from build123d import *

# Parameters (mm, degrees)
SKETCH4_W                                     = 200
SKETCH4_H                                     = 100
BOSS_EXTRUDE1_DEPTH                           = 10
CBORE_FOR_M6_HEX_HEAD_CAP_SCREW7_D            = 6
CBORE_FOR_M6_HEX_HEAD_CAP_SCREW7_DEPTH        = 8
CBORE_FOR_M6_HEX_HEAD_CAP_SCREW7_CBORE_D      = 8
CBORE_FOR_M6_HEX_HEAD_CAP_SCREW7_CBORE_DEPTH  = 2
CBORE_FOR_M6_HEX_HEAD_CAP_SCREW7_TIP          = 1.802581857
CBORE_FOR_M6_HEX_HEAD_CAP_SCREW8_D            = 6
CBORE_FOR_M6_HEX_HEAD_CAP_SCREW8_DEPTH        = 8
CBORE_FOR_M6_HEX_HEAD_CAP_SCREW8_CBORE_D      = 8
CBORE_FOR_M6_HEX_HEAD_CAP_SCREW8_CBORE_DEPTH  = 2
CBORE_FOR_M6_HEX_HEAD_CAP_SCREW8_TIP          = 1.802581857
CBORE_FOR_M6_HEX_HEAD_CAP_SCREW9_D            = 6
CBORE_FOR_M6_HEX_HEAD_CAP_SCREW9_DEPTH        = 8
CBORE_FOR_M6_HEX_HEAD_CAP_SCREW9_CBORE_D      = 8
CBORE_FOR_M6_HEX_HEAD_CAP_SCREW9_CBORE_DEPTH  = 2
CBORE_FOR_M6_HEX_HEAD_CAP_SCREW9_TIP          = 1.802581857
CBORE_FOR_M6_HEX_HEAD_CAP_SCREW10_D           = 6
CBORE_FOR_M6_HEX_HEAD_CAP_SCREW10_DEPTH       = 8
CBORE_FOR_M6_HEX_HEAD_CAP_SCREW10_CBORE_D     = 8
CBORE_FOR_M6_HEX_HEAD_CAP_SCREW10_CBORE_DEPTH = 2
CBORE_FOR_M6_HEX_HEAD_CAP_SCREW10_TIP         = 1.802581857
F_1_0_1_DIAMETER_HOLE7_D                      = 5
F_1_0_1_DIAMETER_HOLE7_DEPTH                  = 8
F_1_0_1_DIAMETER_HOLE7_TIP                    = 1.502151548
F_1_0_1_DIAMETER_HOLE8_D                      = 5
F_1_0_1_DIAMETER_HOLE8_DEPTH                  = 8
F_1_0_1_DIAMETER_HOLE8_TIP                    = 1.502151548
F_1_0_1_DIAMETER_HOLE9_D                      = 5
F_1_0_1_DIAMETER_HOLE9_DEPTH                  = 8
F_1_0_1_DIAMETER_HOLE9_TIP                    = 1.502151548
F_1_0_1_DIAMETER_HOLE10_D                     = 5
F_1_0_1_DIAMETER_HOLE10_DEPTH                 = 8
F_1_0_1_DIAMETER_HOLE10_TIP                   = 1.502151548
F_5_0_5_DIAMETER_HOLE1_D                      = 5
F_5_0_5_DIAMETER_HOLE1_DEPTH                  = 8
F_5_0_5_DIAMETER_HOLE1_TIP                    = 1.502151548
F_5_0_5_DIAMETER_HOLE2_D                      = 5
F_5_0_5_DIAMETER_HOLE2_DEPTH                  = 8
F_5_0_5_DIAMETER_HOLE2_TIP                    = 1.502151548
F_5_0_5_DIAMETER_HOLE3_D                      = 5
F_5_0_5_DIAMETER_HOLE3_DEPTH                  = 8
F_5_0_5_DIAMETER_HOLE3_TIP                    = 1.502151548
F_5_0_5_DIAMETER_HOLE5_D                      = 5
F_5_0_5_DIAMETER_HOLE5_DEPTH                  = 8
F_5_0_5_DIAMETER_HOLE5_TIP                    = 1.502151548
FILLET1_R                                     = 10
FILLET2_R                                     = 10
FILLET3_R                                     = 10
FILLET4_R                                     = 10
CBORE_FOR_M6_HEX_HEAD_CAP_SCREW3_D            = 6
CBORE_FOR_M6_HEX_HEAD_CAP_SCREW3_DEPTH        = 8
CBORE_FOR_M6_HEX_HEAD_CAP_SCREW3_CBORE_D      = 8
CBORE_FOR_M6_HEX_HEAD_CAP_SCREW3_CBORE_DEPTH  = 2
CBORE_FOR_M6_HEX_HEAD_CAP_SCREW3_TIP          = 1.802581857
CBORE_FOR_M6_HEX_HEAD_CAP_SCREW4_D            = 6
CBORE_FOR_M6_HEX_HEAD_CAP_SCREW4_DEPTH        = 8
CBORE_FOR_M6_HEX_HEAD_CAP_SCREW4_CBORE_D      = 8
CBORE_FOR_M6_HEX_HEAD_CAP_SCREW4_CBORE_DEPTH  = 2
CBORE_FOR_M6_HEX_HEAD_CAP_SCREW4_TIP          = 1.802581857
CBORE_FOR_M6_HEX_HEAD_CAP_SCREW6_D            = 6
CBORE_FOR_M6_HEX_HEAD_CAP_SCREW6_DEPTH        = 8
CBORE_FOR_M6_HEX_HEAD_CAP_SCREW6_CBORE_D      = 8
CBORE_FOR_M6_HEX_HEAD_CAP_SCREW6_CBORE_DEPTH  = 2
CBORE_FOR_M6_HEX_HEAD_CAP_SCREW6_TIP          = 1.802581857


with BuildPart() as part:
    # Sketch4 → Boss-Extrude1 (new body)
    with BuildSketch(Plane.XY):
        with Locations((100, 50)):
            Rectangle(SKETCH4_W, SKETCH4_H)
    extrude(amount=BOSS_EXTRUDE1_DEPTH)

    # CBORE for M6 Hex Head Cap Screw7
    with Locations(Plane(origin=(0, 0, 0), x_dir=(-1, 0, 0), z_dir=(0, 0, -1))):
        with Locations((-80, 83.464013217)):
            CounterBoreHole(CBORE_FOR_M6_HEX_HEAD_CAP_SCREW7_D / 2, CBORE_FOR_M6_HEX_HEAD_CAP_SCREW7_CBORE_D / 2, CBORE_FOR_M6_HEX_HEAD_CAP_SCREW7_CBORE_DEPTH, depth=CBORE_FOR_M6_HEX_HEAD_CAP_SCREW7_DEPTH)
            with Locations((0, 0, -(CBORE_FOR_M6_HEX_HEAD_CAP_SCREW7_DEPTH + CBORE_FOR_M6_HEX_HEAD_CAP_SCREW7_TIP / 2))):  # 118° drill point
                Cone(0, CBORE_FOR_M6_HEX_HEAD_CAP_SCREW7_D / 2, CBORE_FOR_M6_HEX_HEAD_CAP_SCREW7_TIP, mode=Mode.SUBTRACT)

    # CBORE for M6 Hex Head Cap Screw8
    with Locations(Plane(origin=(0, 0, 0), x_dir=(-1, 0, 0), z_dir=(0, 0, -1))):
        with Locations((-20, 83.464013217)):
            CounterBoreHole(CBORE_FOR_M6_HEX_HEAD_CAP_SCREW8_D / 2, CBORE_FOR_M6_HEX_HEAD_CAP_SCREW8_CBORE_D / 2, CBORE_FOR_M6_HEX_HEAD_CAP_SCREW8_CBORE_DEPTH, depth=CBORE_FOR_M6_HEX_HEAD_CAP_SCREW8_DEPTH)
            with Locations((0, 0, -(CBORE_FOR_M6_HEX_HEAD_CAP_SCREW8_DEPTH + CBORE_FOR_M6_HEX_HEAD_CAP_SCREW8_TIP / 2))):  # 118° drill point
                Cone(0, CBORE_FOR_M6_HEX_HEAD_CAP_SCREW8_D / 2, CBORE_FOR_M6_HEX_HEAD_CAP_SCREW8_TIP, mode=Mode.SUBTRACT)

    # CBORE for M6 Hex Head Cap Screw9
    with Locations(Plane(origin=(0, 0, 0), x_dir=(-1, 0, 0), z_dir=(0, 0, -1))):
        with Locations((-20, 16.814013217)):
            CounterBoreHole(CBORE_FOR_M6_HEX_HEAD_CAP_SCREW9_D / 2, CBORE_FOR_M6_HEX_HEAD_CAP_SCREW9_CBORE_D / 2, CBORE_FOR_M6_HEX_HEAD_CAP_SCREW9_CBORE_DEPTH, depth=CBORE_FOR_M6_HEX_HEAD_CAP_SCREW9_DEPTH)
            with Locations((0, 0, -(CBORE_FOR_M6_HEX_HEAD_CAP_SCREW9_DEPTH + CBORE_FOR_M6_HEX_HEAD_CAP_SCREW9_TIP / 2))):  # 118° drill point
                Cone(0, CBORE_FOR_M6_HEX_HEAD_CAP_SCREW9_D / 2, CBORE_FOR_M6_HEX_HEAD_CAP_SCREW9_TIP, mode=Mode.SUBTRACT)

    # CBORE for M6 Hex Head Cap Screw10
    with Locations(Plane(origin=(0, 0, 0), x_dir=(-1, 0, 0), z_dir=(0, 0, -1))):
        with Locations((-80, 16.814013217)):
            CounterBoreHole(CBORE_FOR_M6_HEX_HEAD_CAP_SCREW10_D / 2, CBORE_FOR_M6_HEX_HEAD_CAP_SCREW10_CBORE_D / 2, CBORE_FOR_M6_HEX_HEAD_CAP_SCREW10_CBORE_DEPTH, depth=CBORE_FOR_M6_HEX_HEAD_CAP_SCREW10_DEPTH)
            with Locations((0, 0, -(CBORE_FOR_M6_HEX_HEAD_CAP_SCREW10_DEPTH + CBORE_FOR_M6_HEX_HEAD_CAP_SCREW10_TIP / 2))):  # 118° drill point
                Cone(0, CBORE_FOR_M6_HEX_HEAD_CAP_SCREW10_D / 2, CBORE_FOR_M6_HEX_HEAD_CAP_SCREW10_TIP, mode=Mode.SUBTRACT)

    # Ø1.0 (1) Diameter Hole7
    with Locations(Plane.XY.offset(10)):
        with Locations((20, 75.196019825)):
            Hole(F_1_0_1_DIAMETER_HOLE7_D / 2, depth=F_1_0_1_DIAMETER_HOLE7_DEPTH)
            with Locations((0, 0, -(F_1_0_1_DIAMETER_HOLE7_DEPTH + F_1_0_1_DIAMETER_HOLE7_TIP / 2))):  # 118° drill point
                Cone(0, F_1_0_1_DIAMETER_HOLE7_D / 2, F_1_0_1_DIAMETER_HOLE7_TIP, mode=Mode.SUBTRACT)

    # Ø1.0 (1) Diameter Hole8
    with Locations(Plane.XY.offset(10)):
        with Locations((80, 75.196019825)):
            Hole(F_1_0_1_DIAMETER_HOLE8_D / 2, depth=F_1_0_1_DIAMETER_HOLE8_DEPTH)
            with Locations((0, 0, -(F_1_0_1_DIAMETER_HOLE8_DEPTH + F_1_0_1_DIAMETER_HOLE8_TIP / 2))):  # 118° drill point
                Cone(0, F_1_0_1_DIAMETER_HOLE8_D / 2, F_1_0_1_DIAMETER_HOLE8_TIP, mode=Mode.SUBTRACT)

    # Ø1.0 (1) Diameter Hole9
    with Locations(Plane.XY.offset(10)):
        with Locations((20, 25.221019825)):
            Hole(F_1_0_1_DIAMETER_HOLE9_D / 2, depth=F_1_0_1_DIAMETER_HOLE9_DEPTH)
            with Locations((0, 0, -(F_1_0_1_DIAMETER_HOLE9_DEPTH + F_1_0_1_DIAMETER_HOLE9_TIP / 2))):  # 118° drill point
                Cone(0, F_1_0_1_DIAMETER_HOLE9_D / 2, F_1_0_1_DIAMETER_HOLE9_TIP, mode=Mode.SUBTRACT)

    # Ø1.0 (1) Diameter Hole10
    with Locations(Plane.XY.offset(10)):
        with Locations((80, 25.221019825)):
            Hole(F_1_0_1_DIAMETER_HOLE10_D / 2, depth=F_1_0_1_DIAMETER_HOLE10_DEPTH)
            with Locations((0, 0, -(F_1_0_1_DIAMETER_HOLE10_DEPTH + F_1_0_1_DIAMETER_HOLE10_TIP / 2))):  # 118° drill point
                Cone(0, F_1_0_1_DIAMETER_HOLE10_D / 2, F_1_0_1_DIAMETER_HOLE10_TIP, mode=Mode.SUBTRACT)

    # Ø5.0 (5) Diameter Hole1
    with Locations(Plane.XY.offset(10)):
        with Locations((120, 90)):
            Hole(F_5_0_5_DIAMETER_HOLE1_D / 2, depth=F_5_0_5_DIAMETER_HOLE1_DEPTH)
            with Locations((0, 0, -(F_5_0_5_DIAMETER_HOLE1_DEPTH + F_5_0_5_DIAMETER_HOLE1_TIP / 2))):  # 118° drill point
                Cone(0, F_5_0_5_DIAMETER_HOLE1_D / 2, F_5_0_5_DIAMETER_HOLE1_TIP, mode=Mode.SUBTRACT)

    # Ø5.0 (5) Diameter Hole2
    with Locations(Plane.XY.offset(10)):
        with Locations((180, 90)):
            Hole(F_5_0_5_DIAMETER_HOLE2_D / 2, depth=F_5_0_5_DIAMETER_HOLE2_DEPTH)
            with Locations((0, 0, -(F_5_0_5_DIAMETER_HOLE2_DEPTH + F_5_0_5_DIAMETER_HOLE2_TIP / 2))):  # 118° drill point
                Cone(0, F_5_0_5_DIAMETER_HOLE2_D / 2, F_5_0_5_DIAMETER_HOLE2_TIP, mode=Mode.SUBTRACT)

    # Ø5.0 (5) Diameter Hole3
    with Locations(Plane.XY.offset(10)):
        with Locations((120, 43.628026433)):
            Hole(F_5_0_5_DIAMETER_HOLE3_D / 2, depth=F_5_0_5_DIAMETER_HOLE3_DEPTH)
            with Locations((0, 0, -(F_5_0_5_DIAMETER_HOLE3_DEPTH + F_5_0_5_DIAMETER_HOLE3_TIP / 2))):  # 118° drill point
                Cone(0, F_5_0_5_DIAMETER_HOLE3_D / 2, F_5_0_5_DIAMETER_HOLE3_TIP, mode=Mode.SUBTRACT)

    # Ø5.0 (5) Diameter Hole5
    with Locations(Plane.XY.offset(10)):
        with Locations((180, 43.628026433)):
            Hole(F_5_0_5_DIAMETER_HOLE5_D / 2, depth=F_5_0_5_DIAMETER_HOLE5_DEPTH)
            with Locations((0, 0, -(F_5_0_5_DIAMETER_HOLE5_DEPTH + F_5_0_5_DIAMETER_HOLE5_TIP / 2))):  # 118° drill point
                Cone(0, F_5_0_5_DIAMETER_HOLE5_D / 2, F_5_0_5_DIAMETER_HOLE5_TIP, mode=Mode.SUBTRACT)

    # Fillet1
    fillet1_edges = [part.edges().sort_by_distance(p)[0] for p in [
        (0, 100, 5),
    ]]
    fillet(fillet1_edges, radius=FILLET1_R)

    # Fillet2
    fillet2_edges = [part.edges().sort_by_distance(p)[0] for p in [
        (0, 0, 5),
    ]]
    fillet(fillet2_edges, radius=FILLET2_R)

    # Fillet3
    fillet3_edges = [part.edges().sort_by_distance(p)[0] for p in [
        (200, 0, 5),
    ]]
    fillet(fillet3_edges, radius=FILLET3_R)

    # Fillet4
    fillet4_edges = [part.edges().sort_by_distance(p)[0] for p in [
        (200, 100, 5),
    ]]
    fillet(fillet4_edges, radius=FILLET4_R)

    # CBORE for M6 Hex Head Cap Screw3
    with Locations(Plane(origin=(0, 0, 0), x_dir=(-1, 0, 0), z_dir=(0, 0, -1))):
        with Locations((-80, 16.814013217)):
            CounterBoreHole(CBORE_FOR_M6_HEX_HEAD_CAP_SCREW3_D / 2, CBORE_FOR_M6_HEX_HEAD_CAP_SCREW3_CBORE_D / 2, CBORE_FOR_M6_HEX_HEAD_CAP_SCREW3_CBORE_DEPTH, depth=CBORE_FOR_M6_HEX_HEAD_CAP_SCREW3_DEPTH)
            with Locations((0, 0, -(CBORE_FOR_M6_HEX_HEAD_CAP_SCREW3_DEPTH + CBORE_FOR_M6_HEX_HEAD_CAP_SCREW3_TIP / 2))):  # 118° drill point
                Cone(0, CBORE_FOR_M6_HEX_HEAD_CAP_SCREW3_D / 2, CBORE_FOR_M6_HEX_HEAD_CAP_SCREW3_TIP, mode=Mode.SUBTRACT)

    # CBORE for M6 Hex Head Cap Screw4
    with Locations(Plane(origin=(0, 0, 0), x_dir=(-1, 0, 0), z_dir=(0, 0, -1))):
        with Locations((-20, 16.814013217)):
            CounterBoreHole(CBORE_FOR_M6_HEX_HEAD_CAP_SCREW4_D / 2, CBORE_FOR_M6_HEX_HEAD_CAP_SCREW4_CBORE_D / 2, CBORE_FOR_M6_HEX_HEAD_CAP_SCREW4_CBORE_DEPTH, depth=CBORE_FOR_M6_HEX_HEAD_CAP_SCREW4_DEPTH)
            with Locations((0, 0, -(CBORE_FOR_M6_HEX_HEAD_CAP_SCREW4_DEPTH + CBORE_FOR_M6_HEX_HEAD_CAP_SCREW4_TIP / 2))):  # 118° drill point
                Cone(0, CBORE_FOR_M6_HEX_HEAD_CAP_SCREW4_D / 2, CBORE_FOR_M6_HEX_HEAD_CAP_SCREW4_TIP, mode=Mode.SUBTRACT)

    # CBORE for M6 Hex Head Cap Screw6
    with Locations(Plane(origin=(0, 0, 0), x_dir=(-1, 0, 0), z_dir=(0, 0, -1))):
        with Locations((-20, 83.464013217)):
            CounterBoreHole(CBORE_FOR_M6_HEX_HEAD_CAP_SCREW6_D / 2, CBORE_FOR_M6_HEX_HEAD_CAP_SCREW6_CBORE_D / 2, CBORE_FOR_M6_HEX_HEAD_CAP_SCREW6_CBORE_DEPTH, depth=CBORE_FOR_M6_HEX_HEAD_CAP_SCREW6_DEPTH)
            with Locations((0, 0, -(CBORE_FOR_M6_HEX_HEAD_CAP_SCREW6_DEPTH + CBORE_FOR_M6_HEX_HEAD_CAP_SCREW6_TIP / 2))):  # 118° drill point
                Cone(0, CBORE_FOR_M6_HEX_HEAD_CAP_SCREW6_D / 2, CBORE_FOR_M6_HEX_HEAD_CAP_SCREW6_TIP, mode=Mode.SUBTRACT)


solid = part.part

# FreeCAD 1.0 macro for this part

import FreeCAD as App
import Part
import Sketcher

V = App.Vector


def edges_at(feature, points):
    """Names of the edges that pass closest to the given points."""
    edges = feature.Shape.Edges
    near = lambda p: min(range(len(edges)), key=lambda i: edges[i].distToShape(Part.Vertex(*p))[0])
    return sorted({f"Edge{near(p) + 1}" for p in points})

doc = App.newDocument("Part")
params = doc.addObject("Spreadsheet::Sheet", "Params")
for row, (alias, value) in enumerate([
    ("sketch1_width", "200 mm"),
    ("sketch1_height", "100 mm"),
    ("pad1_length", "10 mm"),
    ("sketch2_diameter", "6 mm"),
    ("hole_diameter", "6 mm"),
    ("hole_depth", "8 mm"),
    ("hole_cbore_diameter", "8 mm"),
    ("hole_cbore_depth", "2 mm"),
    ("sketch3_diameter", "6 mm"),
    ("hole2_diameter", "6 mm"),
    ("hole2_depth", "8 mm"),
    ("hole2_cbore_diameter", "8 mm"),
    ("hole2_cbore_depth", "2 mm"),
    ("sketch4_diameter", "6 mm"),
    ("hole3_diameter", "6 mm"),
    ("hole3_depth", "8 mm"),
    ("hole3_cbore_diameter", "8 mm"),
    ("hole3_cbore_depth", "2 mm"),
    ("sketch5_diameter", "6 mm"),
    ("hole4_diameter", "6 mm"),
    ("hole4_depth", "8 mm"),
    ("hole4_cbore_diameter", "8 mm"),
    ("hole4_cbore_depth", "2 mm"),
    ("sketch6_diameter", "5 mm"),
    ("hole5_diameter", "5 mm"),
    ("hole5_depth", "8 mm"),
    ("sketch7_diameter", "5 mm"),
    ("hole6_diameter", "5 mm"),
    ("hole6_depth", "8 mm"),
    ("sketch8_diameter", "5 mm"),
    ("hole7_diameter", "5 mm"),
    ("hole7_depth", "8 mm"),
    ("sketch9_diameter", "5 mm"),
    ("hole8_diameter", "5 mm"),
    ("hole8_depth", "8 mm"),
    ("sketch10_diameter", "5 mm"),
    ("hole9_diameter", "5 mm"),
    ("hole9_depth", "8 mm"),
    ("sketch11_diameter", "5 mm"),
    ("hole10_diameter", "5 mm"),
    ("hole10_depth", "8 mm"),
    ("sketch12_diameter", "5 mm"),
    ("hole11_diameter", "5 mm"),
    ("hole11_depth", "8 mm"),
    ("sketch13_diameter", "5 mm"),
    ("hole12_diameter", "5 mm"),
    ("hole12_depth", "8 mm"),
    ("fillet_radius", "10 mm"),
    ("fillet2_radius", "10 mm"),
    ("fillet3_radius", "10 mm"),
    ("fillet4_radius", "10 mm"),
    ("sketch14_diameter", "6 mm"),
    ("hole13_diameter", "6 mm"),
    ("hole13_depth", "8 mm"),
    ("hole13_cbore_diameter", "8 mm"),
    ("hole13_cbore_depth", "2 mm"),
    ("sketch15_diameter", "6 mm"),
    ("hole14_diameter", "6 mm"),
    ("hole14_depth", "8 mm"),
    ("hole14_cbore_diameter", "8 mm"),
    ("hole14_cbore_depth", "2 mm"),
    ("sketch16_diameter", "6 mm"),
    ("hole15_diameter", "6 mm"),
    ("hole15_depth", "8 mm"),
    ("hole15_cbore_diameter", "8 mm"),
    ("hole15_cbore_depth", "2 mm"),
], start=1):
    params.set(f"A{row}", alias)
    params.set(f"B{row}", "=" + value)
    params.setAlias(f"B{row}", alias)

body = doc.addObject("PartDesign::Body", "Body")

# Sketch on XY plane
sketch1 = body.newObject("Sketcher::SketchObject", "Sketch")
sketch1.AttachmentSupport = (doc.getObject("XY_Plane"), [""])
sketch1.MapMode = "FlatFace"
sketch1.addGeometry(Part.LineSegment(V(0, 100, 0), V(0, 0, 0)), False)
sketch1.addGeometry(Part.LineSegment(V(0, 0, 0), V(200, 0, 0)), False)
sketch1.addGeometry(Part.LineSegment(V(200, 0, 0), V(200, 100, 0)), False)
sketch1.addGeometry(Part.LineSegment(V(200, 100, 0), V(0, 100, 0)), False)
sketch1.addConstraint(Sketcher.Constraint("Coincident", 0, 2, 1, 1))
sketch1.addConstraint(Sketcher.Constraint("Coincident", 1, 2, 2, 1))
sketch1.addConstraint(Sketcher.Constraint("Coincident", 2, 2, 3, 1))
sketch1.addConstraint(Sketcher.Constraint("Coincident", 3, 2, 0, 1))
sketch1.addConstraint(Sketcher.Constraint("Vertical", 0))
sketch1.addConstraint(Sketcher.Constraint("Horizontal", 1))
sketch1.addConstraint(Sketcher.Constraint("Vertical", 2))
sketch1.addConstraint(Sketcher.Constraint("Horizontal", 3))
sketch1.addConstraint(Sketcher.Constraint("Coincident", 0, 2, -1, 1))
sketch1.addConstraint(Sketcher.Constraint("DistanceX", 1, 1, 1, 2, 200.0))
sketch1.addConstraint(Sketcher.Constraint("DistanceY", 0, 2, 0, 1, 100.0))
sketch1.setExpression("Constraints[9]", "Params.sketch1_width")
sketch1.setExpression("Constraints[10]", "Params.sketch1_height")
pad1 = body.newObject("PartDesign::Pad", "Pad")
pad1.Profile = sketch1
pad1.setExpression("Length", "Params.pad1_length")

# Sketch on XY plane
sketch2 = body.newObject("Sketcher::SketchObject", "Sketch001")
sketch2.AttachmentSupport = (doc.getObject("XY_Plane"), [""])
sketch2.MapMode = "FlatFace"
sketch2.addGeometry(Part.Circle(V(80, 83.5, 0), V(0, 0, 1), 3), False)
sketch2.addConstraint(Sketcher.Constraint("Diameter", 0, 6.0))
sketch2.addConstraint(Sketcher.Constraint("DistanceX", -1, 1, 0, 3, 80.0))
sketch2.addConstraint(Sketcher.Constraint("DistanceY", -1, 1, 0, 3, 83.464013))
sketch2.setExpression("Constraints[0]", "Params.sketch2_diameter")
doc.recompute()
hole = body.newObject("PartDesign::Hole", "Hole")
hole.Profile = sketch2
hole.ThreadType = "None"
hole.setExpression("Diameter", "Params.hole_diameter")
hole.DepthType = "Dimension"
hole.setExpression("Depth", "Params.hole_depth")
hole.DrillPoint = "Angled"
hole.DrillPointAngle = 118
hole.HoleCutType = "Counterbore"
hole.setExpression("HoleCutDiameter", "Params.hole_cbore_diameter")
hole.setExpression("HoleCutDepth", "Params.hole_cbore_depth")
hole.Reversed = True

# Sketch on XY plane
sketch3 = body.newObject("Sketcher::SketchObject", "Sketch002")
sketch3.AttachmentSupport = (doc.getObject("XY_Plane"), [""])
sketch3.MapMode = "FlatFace"
sketch3.addGeometry(Part.Circle(V(20, 83.5, 0), V(0, 0, 1), 3), False)
sketch3.addConstraint(Sketcher.Constraint("Diameter", 0, 6.0))
sketch3.addConstraint(Sketcher.Constraint("DistanceX", -1, 1, 0, 3, 20.0))
sketch3.addConstraint(Sketcher.Constraint("DistanceY", -1, 1, 0, 3, 83.464013))
sketch3.setExpression("Constraints[0]", "Params.sketch3_diameter")
doc.recompute()
hole2 = body.newObject("PartDesign::Hole", "Hole001")
hole2.Profile = sketch3
hole2.ThreadType = "None"
hole2.setExpression("Diameter", "Params.hole2_diameter")
hole2.DepthType = "Dimension"
hole2.setExpression("Depth", "Params.hole2_depth")
hole2.DrillPoint = "Angled"
hole2.DrillPointAngle = 118
hole2.HoleCutType = "Counterbore"
hole2.setExpression("HoleCutDiameter", "Params.hole2_cbore_diameter")
hole2.setExpression("HoleCutDepth", "Params.hole2_cbore_depth")
hole2.Reversed = True

# Sketch on XY plane
sketch4 = body.newObject("Sketcher::SketchObject", "Sketch003")
sketch4.AttachmentSupport = (doc.getObject("XY_Plane"), [""])
sketch4.MapMode = "FlatFace"
sketch4.addGeometry(Part.Circle(V(20, 16.8, 0), V(0, 0, 1), 3), False)
sketch4.addConstraint(Sketcher.Constraint("Diameter", 0, 6.0))
sketch4.addConstraint(Sketcher.Constraint("DistanceX", -1, 1, 0, 3, 20.0))
sketch4.addConstraint(Sketcher.Constraint("DistanceY", -1, 1, 0, 3, 16.814013))
sketch4.setExpression("Constraints[0]", "Params.sketch4_diameter")
doc.recompute()
hole3 = body.newObject("PartDesign::Hole", "Hole002")
hole3.Profile = sketch4
hole3.ThreadType = "None"
hole3.setExpression("Diameter", "Params.hole3_diameter")
hole3.DepthType = "Dimension"
hole3.setExpression("Depth", "Params.hole3_depth")
hole3.DrillPoint = "Angled"
hole3.DrillPointAngle = 118
hole3.HoleCutType = "Counterbore"
hole3.setExpression("HoleCutDiameter", "Params.hole3_cbore_diameter")
hole3.setExpression("HoleCutDepth", "Params.hole3_cbore_depth")
hole3.Reversed = True

# Sketch on XY plane
sketch5 = body.newObject("Sketcher::SketchObject", "Sketch004")
sketch5.AttachmentSupport = (doc.getObject("XY_Plane"), [""])
sketch5.MapMode = "FlatFace"
sketch5.addGeometry(Part.Circle(V(80, 16.8, 0), V(0, 0, 1), 3), False)
sketch5.addConstraint(Sketcher.Constraint("Diameter", 0, 6.0))
sketch5.addConstraint(Sketcher.Constraint("DistanceX", -1, 1, 0, 3, 80.0))
sketch5.addConstraint(Sketcher.Constraint("DistanceY", -1, 1, 0, 3, 16.814013))
sketch5.setExpression("Constraints[0]", "Params.sketch5_diameter")
doc.recompute()
hole4 = body.newObject("PartDesign::Hole", "Hole003")
hole4.Profile = sketch5
hole4.ThreadType = "None"
hole4.setExpression("Diameter", "Params.hole4_diameter")
hole4.DepthType = "Dimension"
hole4.setExpression("Depth", "Params.hole4_depth")
hole4.DrillPoint = "Angled"
hole4.DrillPointAngle = 118
hole4.HoleCutType = "Counterbore"
hole4.setExpression("HoleCutDiameter", "Params.hole4_cbore_diameter")
hole4.setExpression("HoleCutDepth", "Params.hole4_cbore_depth")
hole4.Reversed = True

# Sketch on XY plane
sketch6 = body.newObject("Sketcher::SketchObject", "Sketch005")
sketch6.AttachmentSupport = (doc.getObject("XY_Plane"), [""])
sketch6.MapMode = "FlatFace"
sketch6.AttachmentOffset = App.Placement(V(0, 0, 10), App.Rotation())
sketch6.addGeometry(Part.Circle(V(20, 75.2, 0), V(0, 0, 1), 2.5), False)
sketch6.addConstraint(Sketcher.Constraint("Diameter", 0, 5.0))
sketch6.addConstraint(Sketcher.Constraint("DistanceX", -1, 1, 0, 3, 20.0))
sketch6.addConstraint(Sketcher.Constraint("DistanceY", -1, 1, 0, 3, 75.19602))
sketch6.setExpression("Constraints[0]", "Params.sketch6_diameter")
doc.recompute()
hole5 = body.newObject("PartDesign::Hole", "Hole004")
hole5.Profile = sketch6
hole5.ThreadType = "None"
hole5.setExpression("Diameter", "Params.hole5_diameter")
hole5.DepthType = "Dimension"
hole5.setExpression("Depth", "Params.hole5_depth")
hole5.DrillPoint = "Angled"
hole5.DrillPointAngle = 118

# Sketch on XY plane
sketch7 = body.newObject("Sketcher::SketchObject", "Sketch006")
sketch7.AttachmentSupport = (doc.getObject("XY_Plane"), [""])
sketch7.MapMode = "FlatFace"
sketch7.AttachmentOffset = App.Placement(V(0, 0, 10), App.Rotation())
sketch7.addGeometry(Part.Circle(V(80, 75.2, 0), V(0, 0, 1), 2.5), False)
sketch7.addConstraint(Sketcher.Constraint("Diameter", 0, 5.0))
sketch7.addConstraint(Sketcher.Constraint("DistanceX", -1, 1, 0, 3, 80.0))
sketch7.addConstraint(Sketcher.Constraint("DistanceY", -1, 1, 0, 3, 75.19602))
sketch7.setExpression("Constraints[0]", "Params.sketch7_diameter")
doc.recompute()
hole6 = body.newObject("PartDesign::Hole", "Hole005")
hole6.Profile = sketch7
hole6.ThreadType = "None"
hole6.setExpression("Diameter", "Params.hole6_diameter")
hole6.DepthType = "Dimension"
hole6.setExpression("Depth", "Params.hole6_depth")
hole6.DrillPoint = "Angled"
hole6.DrillPointAngle = 118

# Sketch on XY plane
sketch8 = body.newObject("Sketcher::SketchObject", "Sketch007")
sketch8.AttachmentSupport = (doc.getObject("XY_Plane"), [""])
sketch8.MapMode = "FlatFace"
sketch8.AttachmentOffset = App.Placement(V(0, 0, 10), App.Rotation())
sketch8.addGeometry(Part.Circle(V(20, 25.2, 0), V(0, 0, 1), 2.5), False)
sketch8.addConstraint(Sketcher.Constraint("Diameter", 0, 5.0))
sketch8.addConstraint(Sketcher.Constraint("DistanceX", -1, 1, 0, 3, 20.0))
sketch8.addConstraint(Sketcher.Constraint("DistanceY", -1, 1, 0, 3, 25.22102))
sketch8.setExpression("Constraints[0]", "Params.sketch8_diameter")
doc.recompute()
hole7 = body.newObject("PartDesign::Hole", "Hole006")
hole7.Profile = sketch8
hole7.ThreadType = "None"
hole7.setExpression("Diameter", "Params.hole7_diameter")
hole7.DepthType = "Dimension"
hole7.setExpression("Depth", "Params.hole7_depth")
hole7.DrillPoint = "Angled"
hole7.DrillPointAngle = 118

# Sketch on XY plane
sketch9 = body.newObject("Sketcher::SketchObject", "Sketch008")
sketch9.AttachmentSupport = (doc.getObject("XY_Plane"), [""])
sketch9.MapMode = "FlatFace"
sketch9.AttachmentOffset = App.Placement(V(0, 0, 10), App.Rotation())
sketch9.addGeometry(Part.Circle(V(80, 25.2, 0), V(0, 0, 1), 2.5), False)
sketch9.addConstraint(Sketcher.Constraint("Diameter", 0, 5.0))
sketch9.addConstraint(Sketcher.Constraint("DistanceX", -1, 1, 0, 3, 80.0))
sketch9.addConstraint(Sketcher.Constraint("DistanceY", -1, 1, 0, 3, 25.22102))
sketch9.setExpression("Constraints[0]", "Params.sketch9_diameter")
doc.recompute()
hole8 = body.newObject("PartDesign::Hole", "Hole007")
hole8.Profile = sketch9
hole8.ThreadType = "None"
hole8.setExpression("Diameter", "Params.hole8_diameter")
hole8.DepthType = "Dimension"
hole8.setExpression("Depth", "Params.hole8_depth")
hole8.DrillPoint = "Angled"
hole8.DrillPointAngle = 118

# Sketch on XY plane
sketch10 = body.newObject("Sketcher::SketchObject", "Sketch009")
sketch10.AttachmentSupport = (doc.getObject("XY_Plane"), [""])
sketch10.MapMode = "FlatFace"
sketch10.AttachmentOffset = App.Placement(V(0, 0, 10), App.Rotation())
sketch10.addGeometry(Part.Circle(V(120, 90, 0), V(0, 0, 1), 2.5), False)
sketch10.addConstraint(Sketcher.Constraint("Diameter", 0, 5.0))
sketch10.addConstraint(Sketcher.Constraint("DistanceX", -1, 1, 0, 3, 120.0))
sketch10.addConstraint(Sketcher.Constraint("DistanceY", -1, 1, 0, 3, 90.0))
sketch10.setExpression("Constraints[0]", "Params.sketch10_diameter")
doc.recompute()
hole9 = body.newObject("PartDesign::Hole", "Hole008")
hole9.Profile = sketch10
hole9.ThreadType = "None"
hole9.setExpression("Diameter", "Params.hole9_diameter")
hole9.DepthType = "Dimension"
hole9.setExpression("Depth", "Params.hole9_depth")
hole9.DrillPoint = "Angled"
hole9.DrillPointAngle = 118

# Sketch on XY plane
sketch11 = body.newObject("Sketcher::SketchObject", "Sketch010")
sketch11.AttachmentSupport = (doc.getObject("XY_Plane"), [""])
sketch11.MapMode = "FlatFace"
sketch11.AttachmentOffset = App.Placement(V(0, 0, 10), App.Rotation())
sketch11.addGeometry(Part.Circle(V(180, 90, 0), V(0, 0, 1), 2.5), False)
sketch11.addConstraint(Sketcher.Constraint("Diameter", 0, 5.0))
sketch11.addConstraint(Sketcher.Constraint("DistanceX", -1, 1, 0, 3, 180.0))
sketch11.addConstraint(Sketcher.Constraint("DistanceY", -1, 1, 0, 3, 90.0))
sketch11.setExpression("Constraints[0]", "Params.sketch11_diameter")
doc.recompute()
hole10 = body.newObject("PartDesign::Hole", "Hole009")
hole10.Profile = sketch11
hole10.ThreadType = "None"
hole10.setExpression("Diameter", "Params.hole10_diameter")
hole10.DepthType = "Dimension"
hole10.setExpression("Depth", "Params.hole10_depth")
hole10.DrillPoint = "Angled"
hole10.DrillPointAngle = 118

# Sketch on XY plane
sketch12 = body.newObject("Sketcher::SketchObject", "Sketch011")
sketch12.AttachmentSupport = (doc.getObject("XY_Plane"), [""])
sketch12.MapMode = "FlatFace"
sketch12.AttachmentOffset = App.Placement(V(0, 0, 10), App.Rotation())
sketch12.addGeometry(Part.Circle(V(120, 43.6, 0), V(0, 0, 1), 2.5), False)
sketch12.addConstraint(Sketcher.Constraint("Diameter", 0, 5.0))
sketch12.addConstraint(Sketcher.Constraint("DistanceX", -1, 1, 0, 3, 120.0))
sketch12.addConstraint(Sketcher.Constraint("DistanceY", -1, 1, 0, 3, 43.628026))
sketch12.setExpression("Constraints[0]", "Params.sketch12_diameter")
doc.recompute()
hole11 = body.newObject("PartDesign::Hole", "Hole010")
hole11.Profile = sketch12
hole11.ThreadType = "None"
hole11.setExpression("Diameter", "Params.hole11_diameter")
hole11.DepthType = "Dimension"
hole11.setExpression("Depth", "Params.hole11_depth")
hole11.DrillPoint = "Angled"
hole11.DrillPointAngle = 118

# Sketch on XY plane
sketch13 = body.newObject("Sketcher::SketchObject", "Sketch012")
sketch13.AttachmentSupport = (doc.getObject("XY_Plane"), [""])
sketch13.MapMode = "FlatFace"
sketch13.AttachmentOffset = App.Placement(V(0, 0, 10), App.Rotation())
sketch13.addGeometry(Part.Circle(V(180, 43.6, 0), V(0, 0, 1), 2.5), False)
sketch13.addConstraint(Sketcher.Constraint("Diameter", 0, 5.0))
sketch13.addConstraint(Sketcher.Constraint("DistanceX", -1, 1, 0, 3, 180.0))
sketch13.addConstraint(Sketcher.Constraint("DistanceY", -1, 1, 0, 3, 43.628026))
sketch13.setExpression("Constraints[0]", "Params.sketch13_diameter")
doc.recompute()
hole12 = body.newObject("PartDesign::Hole", "Hole011")
hole12.Profile = sketch13
hole12.ThreadType = "None"
hole12.setExpression("Diameter", "Params.hole12_diameter")
hole12.DepthType = "Dimension"
hole12.setExpression("Depth", "Params.hole12_depth")
hole12.DrillPoint = "Angled"
hole12.DrillPointAngle = 118
doc.recompute()

fillet = body.newObject("PartDesign::Fillet", "Fillet")
fillet.Base = (hole12, edges_at(hole12, [(0, 100, 5)]))
fillet.setExpression("Radius", "Params.fillet_radius")
doc.recompute()

fillet2 = body.newObject("PartDesign::Fillet", "Fillet001")
fillet2.Base = (fillet, edges_at(fillet, [(0, 0, 5)]))
fillet2.setExpression("Radius", "Params.fillet2_radius")
doc.recompute()

fillet3 = body.newObject("PartDesign::Fillet", "Fillet002")
fillet3.Base = (fillet2, edges_at(fillet2, [(200, 0, 5)]))
fillet3.setExpression("Radius", "Params.fillet3_radius")
doc.recompute()

fillet4 = body.newObject("PartDesign::Fillet", "Fillet003")
fillet4.Base = (fillet3, edges_at(fillet3, [(200, 100, 5)]))
fillet4.setExpression("Radius", "Params.fillet4_radius")

# Sketch on XY plane
sketch14 = body.newObject("Sketcher::SketchObject", "Sketch013")
sketch14.AttachmentSupport = (doc.getObject("XY_Plane"), [""])
sketch14.MapMode = "FlatFace"
sketch14.addGeometry(Part.Circle(V(80, 16.8, 0), V(0, 0, 1), 3), False)
sketch14.addConstraint(Sketcher.Constraint("Diameter", 0, 6.0))
sketch14.addConstraint(Sketcher.Constraint("DistanceX", -1, 1, 0, 3, 80.0))
sketch14.addConstraint(Sketcher.Constraint("DistanceY", -1, 1, 0, 3, 16.814013))
sketch14.setExpression("Constraints[0]", "Params.sketch14_diameter")
doc.recompute()
hole13 = body.newObject("PartDesign::Hole", "Hole012")
hole13.Profile = sketch14
hole13.ThreadType = "None"
hole13.setExpression("Diameter", "Params.hole13_diameter")
hole13.DepthType = "Dimension"
hole13.setExpression("Depth", "Params.hole13_depth")
hole13.DrillPoint = "Angled"
hole13.DrillPointAngle = 118
hole13.HoleCutType = "Counterbore"
hole13.setExpression("HoleCutDiameter", "Params.hole13_cbore_diameter")
hole13.setExpression("HoleCutDepth", "Params.hole13_cbore_depth")
hole13.Reversed = True

# Sketch on XY plane
sketch15 = body.newObject("Sketcher::SketchObject", "Sketch014")
sketch15.AttachmentSupport = (doc.getObject("XY_Plane"), [""])
sketch15.MapMode = "FlatFace"
sketch15.addGeometry(Part.Circle(V(20, 16.8, 0), V(0, 0, 1), 3), False)
sketch15.addConstraint(Sketcher.Constraint("Diameter", 0, 6.0))
sketch15.addConstraint(Sketcher.Constraint("DistanceX", -1, 1, 0, 3, 20.0))
sketch15.addConstraint(Sketcher.Constraint("DistanceY", -1, 1, 0, 3, 16.814013))
sketch15.setExpression("Constraints[0]", "Params.sketch15_diameter")
doc.recompute()
hole14 = body.newObject("PartDesign::Hole", "Hole013")
hole14.Profile = sketch15
hole14.ThreadType = "None"
hole14.setExpression("Diameter", "Params.hole14_diameter")
hole14.DepthType = "Dimension"
hole14.setExpression("Depth", "Params.hole14_depth")
hole14.DrillPoint = "Angled"
hole14.DrillPointAngle = 118
hole14.HoleCutType = "Counterbore"
hole14.setExpression("HoleCutDiameter", "Params.hole14_cbore_diameter")
hole14.setExpression("HoleCutDepth", "Params.hole14_cbore_depth")
hole14.Reversed = True

# Sketch on XY plane
sketch16 = body.newObject("Sketcher::SketchObject", "Sketch015")
sketch16.AttachmentSupport = (doc.getObject("XY_Plane"), [""])
sketch16.MapMode = "FlatFace"
sketch16.addGeometry(Part.Circle(V(20, 83.5, 0), V(0, 0, 1), 3), False)
sketch16.addConstraint(Sketcher.Constraint("Diameter", 0, 6.0))
sketch16.addConstraint(Sketcher.Constraint("DistanceX", -1, 1, 0, 3, 20.0))
sketch16.addConstraint(Sketcher.Constraint("DistanceY", -1, 1, 0, 3, 83.464013))
sketch16.setExpression("Constraints[0]", "Params.sketch16_diameter")
doc.recompute()
hole15 = body.newObject("PartDesign::Hole", "Hole014")
hole15.Profile = sketch16
hole15.ThreadType = "None"
hole15.setExpression("Diameter", "Params.hole15_diameter")
hole15.DepthType = "Dimension"
hole15.setExpression("Depth", "Params.hole15_depth")
hole15.DrillPoint = "Angled"
hole15.DrillPointAngle = 118
hole15.HoleCutType = "Counterbore"
hole15.setExpression("HoleCutDiameter", "Params.hole15_cbore_diameter")
hole15.setExpression("HoleCutDepth", "Params.hole15_cbore_depth")
hole15.Reversed = True

doc.recompute()
